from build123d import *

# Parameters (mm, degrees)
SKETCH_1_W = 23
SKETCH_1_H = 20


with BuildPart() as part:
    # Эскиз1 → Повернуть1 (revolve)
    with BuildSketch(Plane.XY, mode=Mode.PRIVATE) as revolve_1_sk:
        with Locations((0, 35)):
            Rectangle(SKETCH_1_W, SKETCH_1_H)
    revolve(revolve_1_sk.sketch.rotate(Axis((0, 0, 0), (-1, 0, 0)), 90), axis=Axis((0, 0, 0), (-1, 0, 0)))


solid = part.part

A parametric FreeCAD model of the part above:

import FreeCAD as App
import Part
import Sketcher


def add_polygon(sketch, points):
    """Adds a closed chain of lines whose ends are joined by coincident constraints."""
    first, n = sketch.GeometryCount, len(points)
    for a, b in zip(points, points[1:] + points[:1]):
        sketch.addGeometry(Part.LineSegment(App.Vector(*a, 0), App.Vector(*b, 0)), False)
    for i in range(n):
        sketch.addConstraint(Sketcher.Constraint("Coincident", first + i, 2, first + (i + 1) % n, 1))

doc = App.newDocument("Part")
body = doc.addObject("PartDesign::Body", "Body")

sketch1 = doc.addObject("Sketcher::SketchObject", "Sketch")
body.addObject(sketch1)
sketch1.AttachmentSupport = (doc.XY_Plane, [""])
sketch1.MapMode = "FlatFace"
add_polygon(sketch1, [(-12, 45), (-12, 25), (12, 25), (12, 45)])
sketch1.addConstraint(Sketcher.Constraint("Vertical", 0))
sketch1.addConstraint(Sketcher.Constraint("Horizontal", 1))
sketch1.addConstraint(Sketcher.Constraint("Vertical", 2))
sketch1.addConstraint(Sketcher.Constraint("Horizontal", 3))
sketch1.addConstraint(Sketcher.Constraint("DistanceX", 1, 1, 1, 2, 23.0))
sketch1.addConstraint(Sketcher.Constraint("DistanceY", 0, 2, 0, 1, 20.0))
sketch1.addConstraint(Sketcher.Constraint("DistanceY", -1, 1, 0, 2, 25.0))
sketch1.addConstraint(Sketcher.Constraint("DistanceX", 0, 2, -1, 1, 11.5))
revolution = doc.addObject("PartDesign::Revolution", "Revolution")
body.addObject(revolution)
revolution.Profile = sketch1
revolution.ReferenceAxis = (sketch1, ["H_Axis"])
revolution.Angle = 360

doc.recompute()
